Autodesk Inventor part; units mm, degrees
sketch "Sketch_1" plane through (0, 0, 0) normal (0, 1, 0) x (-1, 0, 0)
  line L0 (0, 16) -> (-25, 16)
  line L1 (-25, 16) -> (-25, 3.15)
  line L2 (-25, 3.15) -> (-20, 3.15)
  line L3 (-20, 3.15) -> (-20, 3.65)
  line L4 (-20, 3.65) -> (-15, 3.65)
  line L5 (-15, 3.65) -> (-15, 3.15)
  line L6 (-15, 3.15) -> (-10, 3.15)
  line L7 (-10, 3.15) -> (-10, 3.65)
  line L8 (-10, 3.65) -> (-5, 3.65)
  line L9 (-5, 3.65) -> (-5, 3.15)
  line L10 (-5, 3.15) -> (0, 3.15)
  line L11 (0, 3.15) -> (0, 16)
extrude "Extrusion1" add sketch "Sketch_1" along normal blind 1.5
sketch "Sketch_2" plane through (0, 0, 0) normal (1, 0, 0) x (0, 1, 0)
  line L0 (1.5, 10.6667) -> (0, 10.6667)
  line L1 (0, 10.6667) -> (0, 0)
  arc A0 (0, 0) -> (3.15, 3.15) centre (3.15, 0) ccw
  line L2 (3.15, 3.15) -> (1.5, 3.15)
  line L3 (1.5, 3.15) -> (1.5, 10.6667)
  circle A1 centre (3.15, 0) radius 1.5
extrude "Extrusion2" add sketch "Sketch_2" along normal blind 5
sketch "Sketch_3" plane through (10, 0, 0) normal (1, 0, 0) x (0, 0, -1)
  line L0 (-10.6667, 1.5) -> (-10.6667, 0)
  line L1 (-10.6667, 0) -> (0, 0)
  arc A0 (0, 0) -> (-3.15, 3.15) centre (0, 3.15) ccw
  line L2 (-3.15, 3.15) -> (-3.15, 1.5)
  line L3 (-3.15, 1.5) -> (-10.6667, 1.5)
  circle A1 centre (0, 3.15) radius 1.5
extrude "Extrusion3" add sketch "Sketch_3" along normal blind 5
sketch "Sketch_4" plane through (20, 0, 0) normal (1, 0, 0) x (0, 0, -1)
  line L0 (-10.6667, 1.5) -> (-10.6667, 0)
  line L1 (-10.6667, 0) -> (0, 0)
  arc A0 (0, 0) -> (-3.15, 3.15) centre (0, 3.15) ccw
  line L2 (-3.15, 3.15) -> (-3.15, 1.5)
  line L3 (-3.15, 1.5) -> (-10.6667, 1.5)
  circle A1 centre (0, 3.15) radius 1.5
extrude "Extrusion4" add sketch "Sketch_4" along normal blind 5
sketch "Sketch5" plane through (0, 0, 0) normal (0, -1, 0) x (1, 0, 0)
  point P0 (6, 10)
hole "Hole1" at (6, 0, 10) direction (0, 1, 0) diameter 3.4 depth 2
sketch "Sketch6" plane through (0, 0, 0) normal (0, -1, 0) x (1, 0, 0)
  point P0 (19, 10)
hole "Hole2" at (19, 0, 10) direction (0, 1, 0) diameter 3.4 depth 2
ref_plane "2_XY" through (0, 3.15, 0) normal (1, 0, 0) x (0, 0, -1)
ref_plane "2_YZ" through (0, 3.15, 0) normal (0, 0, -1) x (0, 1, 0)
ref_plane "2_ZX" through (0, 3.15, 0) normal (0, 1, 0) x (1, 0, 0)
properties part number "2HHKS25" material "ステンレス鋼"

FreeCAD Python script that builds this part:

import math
import FreeCAD as App
import Part
import Sketcher
from FreeCAD import Vector
Q = App.Units.Quantity


def add_polygon(sketch, points):
    """Adds a closed chain of lines whose ends are joined by coincident constraints."""
    first, n = sketch.GeometryCount, len(points)
    for a, b in zip(points, points[1:] + points[:1]):
        sketch.addGeometry(Part.LineSegment(App.Vector(*a, 0), App.Vector(*b, 0)), False)
    for i in range(n):
        sketch.addConstraint(Sketcher.Constraint("Coincident", first + i, 2, first + (i + 1) % n, 1))

doc = App.newDocument("Part")
body = doc.addObject("PartDesign::Body", "Body")

sketch1 = body.newObject("Sketcher::SketchObject", "Sketch")
sketch1.AttachmentSupport = (doc.getObject("XZ_Plane"), [""])
sketch1.MapMode = "FlatFace"
add_polygon(sketch1, [(0, 3.1), (0, 16), (25, 16), (25, 3.1), (20, 3.1), (20, 3.6), (15, 3.6), (15, 3.1), (10, 3.1), (10, 3.6), (5, 3.6), (5, 3.1)])
sketch1.addConstraint([
    Sketcher.Constraint("Vertical", 0),
    Sketcher.Constraint("Horizontal", 1),
    Sketcher.Constraint("Vertical", 2),
    Sketcher.Constraint("Horizontal", 3),
    Sketcher.Constraint("Vertical", 4),
    Sketcher.Constraint("Horizontal", 5),
    Sketcher.Constraint("Vertical", 6),
    Sketcher.Constraint("Horizontal", 7),
    Sketcher.Constraint("Vertical", 8),
    Sketcher.Constraint("Horizontal", 9),
    Sketcher.Constraint("Vertical", 10),
    Sketcher.Constraint("Horizontal", 11),
    Sketcher.Constraint("PointOnObject", 0, 2, -2),
    Sketcher.Constraint("Horizontal", 3, 2, 6, 2),
    Sketcher.Constraint("Horizontal", 5, 2, 8, 2),
    Sketcher.Constraint("Horizontal", 7, 2, 10, 2),
    Sketcher.Constraint("Equal", 3, 5),
    Sketcher.Constraint("Equal", 5, 7),
    Sketcher.Constraint("Equal", 7, 9),
    Sketcher.Constraint("Equal", 9, 11),
    Sketcher.Constraint("DistanceX", 1, 1, 1, 2, Q("25 mm")),
    Sketcher.Constraint("DistanceY", 4, 1, 4, 2, Q("0.5 mm")),
    Sketcher.Constraint("DistanceY", -1, 1, 0, 2, Q("16 mm")),
    Sketcher.Constraint("DistanceY", 0, 1, 0, 2, Q("12.85 mm")),
])
pad1 = body.newObject("PartDesign::Pad", "Pad")
pad1.Profile = sketch1
pad1.Length = 1.5
pad1.Reversed = True

sketch2 = body.newObject("Sketcher::SketchObject", "Sketch001")
sketch2.AttachmentSupport = (doc.getObject("YZ_Plane"), [""])
sketch2.MapMode = "FlatFace"
sketch2.addGeometry([
    Part.LineSegment(Vector(1.5, 3.1, 0), Vector(1.5, 10.7, 0)),
    Part.LineSegment(Vector(1.5, 10.7, 0), Vector(0, 10.7, 0)),
    Part.LineSegment(Vector(0, 10.7, 0), Vector(0, 0, 0)),
    Part.ArcOfCircle(Part.Circle(Vector(3.1, 0, 0), Vector(0, 0, 1), 3.1), math.radians(180), math.radians(450)),
    Part.LineSegment(Vector(3.1, 3.1, 0), Vector(1.5, 3.1, 0)),
    Part.Circle(Vector(3.1, 0, 0), Vector(0, 0, 1), 1.5),
], False)
sketch2.addConstraint([
    Sketcher.Constraint("Coincident", 0, 2, 1, 1),
    Sketcher.Constraint("Coincident", 1, 2, 2, 1),
    Sketcher.Constraint("Tangent", 2, 2, 3, 1),
    Sketcher.Constraint("Tangent", 3, 2, 4, 1),
    Sketcher.Constraint("Coincident", 4, 2, 0, 1),
    Sketcher.Constraint("Vertical", 0),
    Sketcher.Constraint("Horizontal", 1),
    Sketcher.Constraint("Vertical", 2),
    Sketcher.Constraint("Horizontal", 4),
    Sketcher.Constraint("Coincident", 2, 2, -1, 1),
    Sketcher.Constraint("Coincident", 5, 3, 3, 3),
    Sketcher.Constraint("Diameter", 5, Q("3 mm")),
    Sketcher.Constraint("Radius", 3, Q("3.15 mm")),
    Sketcher.Constraint("DistanceX", 1, 2, 1, 1, Q("1.5 mm")),
    Sketcher.Constraint("DistanceY", 0, 1, 0, 2, Q("7.5167 mm")),
])
pad2 = body.newObject("PartDesign::Pad", "Pad001")
pad2.Profile = sketch2
pad2.Length = 5

sketch3 = body.newObject("Sketcher::SketchObject", "Sketch002")
sketch3.AttachmentSupport = (doc.getObject("YZ_Plane"), [""])
sketch3.MapMode = "FlatFace"
sketch3.AttachmentOffset = App.Placement(Vector(0, 0, 10), App.Rotation())
sketch3.addGeometry([
    Part.LineSegment(Vector(1.5, 3.1, 0), Vector(1.5, 10.7, 0)),
    Part.LineSegment(Vector(1.5, 10.7, 0), Vector(0, 10.7, 0)),
    Part.LineSegment(Vector(0, 10.7, 0), Vector(0, 0, 0)),
    Part.ArcOfCircle(Part.Circle(Vector(3.1, 0, 0), Vector(0, 0, 1), 3.1), math.radians(180), math.radians(450)),
    Part.LineSegment(Vector(3.1, 3.1, 0), Vector(1.5, 3.1, 0)),
    Part.Circle(Vector(3.1, 0, 0), Vector(0, 0, 1), 1.5),
], False)
sketch3.addConstraint([
    Sketcher.Constraint("Coincident", 0, 2, 1, 1),
    Sketcher.Constraint("Coincident", 1, 2, 2, 1),
    Sketcher.Constraint("Tangent", 2, 2, 3, 1),
    Sketcher.Constraint("Tangent", 3, 2, 4, 1),
    Sketcher.Constraint("Coincident", 4, 2, 0, 1),
    Sketcher.Constraint("Vertical", 0),
    Sketcher.Constraint("Horizontal", 1),
    Sketcher.Constraint("Vertical", 2),
    Sketcher.Constraint("Horizontal", 4),
    Sketcher.Constraint("Coincident", 2, 2, -1, 1),
    Sketcher.Constraint("Coincident", 5, 3, 3, 3),
    Sketcher.Constraint("Diameter", 5, Q("3 mm")),
    Sketcher.Constraint("Radius", 3, Q("3.15 mm")),
    Sketcher.Constraint("DistanceX", 1, 2, 1, 1, Q("1.5 mm")),
    Sketcher.Constraint("DistanceY", 0, 1, 0, 2, Q("7.5167 mm")),
])
pad3 = body.newObject("PartDesign::Pad", "Pad002")
pad3.Profile = sketch3
pad3.Length = 5

sketch4 = body.newObject("Sketcher::SketchObject", "Sketch003")
sketch4.AttachmentSupport = (doc.getObject("YZ_Plane"), [""])
sketch4.MapMode = "FlatFace"
sketch4.AttachmentOffset = App.Placement(Vector(0, 0, 20), App.Rotation())
sketch4.addGeometry([
    Part.LineSegment(Vector(1.5, 3.1, 0), Vector(1.5, 10.7, 0)),
    Part.LineSegment(Vector(1.5, 10.7, 0), Vector(0, 10.7, 0)),
    Part.LineSegment(Vector(0, 10.7, 0), Vector(0, 0, 0)),
    Part.ArcOfCircle(Part.Circle(Vector(3.1, 0, 0), Vector(0, 0, 1), 3.1), math.radians(180), math.radians(450)),
    Part.LineSegment(Vector(3.1, 3.1, 0), Vector(1.5, 3.1, 0)),
    Part.Circle(Vector(3.1, 0, 0), Vector(0, 0, 1), 1.5),
], False)
sketch4.addConstraint([
    Sketcher.Constraint("Coincident", 0, 2, 1, 1),
    Sketcher.Constraint("Coincident", 1, 2, 2, 1),
    Sketcher.Constraint("Tangent", 2, 2, 3, 1),
    Sketcher.Constraint("Tangent", 3, 2, 4, 1),
    Sketcher.Constraint("Coincident", 4, 2, 0, 1),
    Sketcher.Constraint("Vertical", 0),
    Sketcher.Constraint("Horizontal", 1),
    Sketcher.Constraint("Vertical", 2),
    Sketcher.Constraint("Horizontal", 4),
    Sketcher.Constraint("Coincident", 2, 2, -1, 1),
    Sketcher.Constraint("Coincident", 5, 3, 3, 3),
    Sketcher.Constraint("Diameter", 5, Q("3 mm")),
    Sketcher.Constraint("Radius", 3, Q("3.15 mm")),
    Sketcher.Constraint("DistanceX", 1, 2, 1, 1, Q("1.5 mm")),
    Sketcher.Constraint("DistanceY", 0, 1, 0, 2, Q("7.5167 mm")),
])
pad4 = body.newObject("PartDesign::Pad", "Pad003")
pad4.Profile = sketch4
pad4.Length = 5

sketch5 = body.newObject("Sketcher::SketchObject", "Sketch004")
sketch5.AttachmentSupport = (doc.getObject("XZ_Plane"), [""])
sketch5.MapMode = "FlatFace"
sketch5.addGeometry(Part.Circle(Vector(6, 10, 0), Vector(0, 0, 1), 1.7), False)
sketch5.addConstraint([
    Sketcher.Constraint("Diameter", 0, Q("3.4 mm")),
    Sketcher.Constraint("DistanceX", -1, 1, 0, 3, Q("6 mm")),
    Sketcher.Constraint("DistanceY", -1, 1, 0, 3, Q("10 mm")),
])
doc.recompute()
hole = body.newObject("PartDesign::Hole", "Hole")
hole.Profile = sketch5
hole.ThreadType = "None"
hole.Diameter = 3.4
hole.DepthType = "Dimension"
hole.Depth = 2
hole.DrillPoint = "Flat"

sketch6 = body.newObject("Sketcher::SketchObject", "Sketch005")
sketch6.AttachmentSupport = (doc.getObject("XZ_Plane"), [""])
sketch6.MapMode = "FlatFace"
sketch6.addGeometry(Part.Circle(Vector(19, 10, 0), Vector(0, 0, 1), 1.7), False)
sketch6.addConstraint([
    Sketcher.Constraint("Diameter", 0, Q("3.4 mm")),
    Sketcher.Constraint("DistanceX", -1, 1, 0, 3, Q("19 mm")),
    Sketcher.Constraint("DistanceY", -1, 1, 0, 3, Q("10 mm")),
])
doc.recompute()
hole2 = body.newObject("PartDesign::Hole", "Hole001")
hole2.Profile = sketch6
hole2.ThreadType = "None"
hole2.Diameter = 3.4
hole2.DepthType = "Dimension"
hole2.Depth = 2
hole2.DrillPoint = "Flat"

doc.recompute()
